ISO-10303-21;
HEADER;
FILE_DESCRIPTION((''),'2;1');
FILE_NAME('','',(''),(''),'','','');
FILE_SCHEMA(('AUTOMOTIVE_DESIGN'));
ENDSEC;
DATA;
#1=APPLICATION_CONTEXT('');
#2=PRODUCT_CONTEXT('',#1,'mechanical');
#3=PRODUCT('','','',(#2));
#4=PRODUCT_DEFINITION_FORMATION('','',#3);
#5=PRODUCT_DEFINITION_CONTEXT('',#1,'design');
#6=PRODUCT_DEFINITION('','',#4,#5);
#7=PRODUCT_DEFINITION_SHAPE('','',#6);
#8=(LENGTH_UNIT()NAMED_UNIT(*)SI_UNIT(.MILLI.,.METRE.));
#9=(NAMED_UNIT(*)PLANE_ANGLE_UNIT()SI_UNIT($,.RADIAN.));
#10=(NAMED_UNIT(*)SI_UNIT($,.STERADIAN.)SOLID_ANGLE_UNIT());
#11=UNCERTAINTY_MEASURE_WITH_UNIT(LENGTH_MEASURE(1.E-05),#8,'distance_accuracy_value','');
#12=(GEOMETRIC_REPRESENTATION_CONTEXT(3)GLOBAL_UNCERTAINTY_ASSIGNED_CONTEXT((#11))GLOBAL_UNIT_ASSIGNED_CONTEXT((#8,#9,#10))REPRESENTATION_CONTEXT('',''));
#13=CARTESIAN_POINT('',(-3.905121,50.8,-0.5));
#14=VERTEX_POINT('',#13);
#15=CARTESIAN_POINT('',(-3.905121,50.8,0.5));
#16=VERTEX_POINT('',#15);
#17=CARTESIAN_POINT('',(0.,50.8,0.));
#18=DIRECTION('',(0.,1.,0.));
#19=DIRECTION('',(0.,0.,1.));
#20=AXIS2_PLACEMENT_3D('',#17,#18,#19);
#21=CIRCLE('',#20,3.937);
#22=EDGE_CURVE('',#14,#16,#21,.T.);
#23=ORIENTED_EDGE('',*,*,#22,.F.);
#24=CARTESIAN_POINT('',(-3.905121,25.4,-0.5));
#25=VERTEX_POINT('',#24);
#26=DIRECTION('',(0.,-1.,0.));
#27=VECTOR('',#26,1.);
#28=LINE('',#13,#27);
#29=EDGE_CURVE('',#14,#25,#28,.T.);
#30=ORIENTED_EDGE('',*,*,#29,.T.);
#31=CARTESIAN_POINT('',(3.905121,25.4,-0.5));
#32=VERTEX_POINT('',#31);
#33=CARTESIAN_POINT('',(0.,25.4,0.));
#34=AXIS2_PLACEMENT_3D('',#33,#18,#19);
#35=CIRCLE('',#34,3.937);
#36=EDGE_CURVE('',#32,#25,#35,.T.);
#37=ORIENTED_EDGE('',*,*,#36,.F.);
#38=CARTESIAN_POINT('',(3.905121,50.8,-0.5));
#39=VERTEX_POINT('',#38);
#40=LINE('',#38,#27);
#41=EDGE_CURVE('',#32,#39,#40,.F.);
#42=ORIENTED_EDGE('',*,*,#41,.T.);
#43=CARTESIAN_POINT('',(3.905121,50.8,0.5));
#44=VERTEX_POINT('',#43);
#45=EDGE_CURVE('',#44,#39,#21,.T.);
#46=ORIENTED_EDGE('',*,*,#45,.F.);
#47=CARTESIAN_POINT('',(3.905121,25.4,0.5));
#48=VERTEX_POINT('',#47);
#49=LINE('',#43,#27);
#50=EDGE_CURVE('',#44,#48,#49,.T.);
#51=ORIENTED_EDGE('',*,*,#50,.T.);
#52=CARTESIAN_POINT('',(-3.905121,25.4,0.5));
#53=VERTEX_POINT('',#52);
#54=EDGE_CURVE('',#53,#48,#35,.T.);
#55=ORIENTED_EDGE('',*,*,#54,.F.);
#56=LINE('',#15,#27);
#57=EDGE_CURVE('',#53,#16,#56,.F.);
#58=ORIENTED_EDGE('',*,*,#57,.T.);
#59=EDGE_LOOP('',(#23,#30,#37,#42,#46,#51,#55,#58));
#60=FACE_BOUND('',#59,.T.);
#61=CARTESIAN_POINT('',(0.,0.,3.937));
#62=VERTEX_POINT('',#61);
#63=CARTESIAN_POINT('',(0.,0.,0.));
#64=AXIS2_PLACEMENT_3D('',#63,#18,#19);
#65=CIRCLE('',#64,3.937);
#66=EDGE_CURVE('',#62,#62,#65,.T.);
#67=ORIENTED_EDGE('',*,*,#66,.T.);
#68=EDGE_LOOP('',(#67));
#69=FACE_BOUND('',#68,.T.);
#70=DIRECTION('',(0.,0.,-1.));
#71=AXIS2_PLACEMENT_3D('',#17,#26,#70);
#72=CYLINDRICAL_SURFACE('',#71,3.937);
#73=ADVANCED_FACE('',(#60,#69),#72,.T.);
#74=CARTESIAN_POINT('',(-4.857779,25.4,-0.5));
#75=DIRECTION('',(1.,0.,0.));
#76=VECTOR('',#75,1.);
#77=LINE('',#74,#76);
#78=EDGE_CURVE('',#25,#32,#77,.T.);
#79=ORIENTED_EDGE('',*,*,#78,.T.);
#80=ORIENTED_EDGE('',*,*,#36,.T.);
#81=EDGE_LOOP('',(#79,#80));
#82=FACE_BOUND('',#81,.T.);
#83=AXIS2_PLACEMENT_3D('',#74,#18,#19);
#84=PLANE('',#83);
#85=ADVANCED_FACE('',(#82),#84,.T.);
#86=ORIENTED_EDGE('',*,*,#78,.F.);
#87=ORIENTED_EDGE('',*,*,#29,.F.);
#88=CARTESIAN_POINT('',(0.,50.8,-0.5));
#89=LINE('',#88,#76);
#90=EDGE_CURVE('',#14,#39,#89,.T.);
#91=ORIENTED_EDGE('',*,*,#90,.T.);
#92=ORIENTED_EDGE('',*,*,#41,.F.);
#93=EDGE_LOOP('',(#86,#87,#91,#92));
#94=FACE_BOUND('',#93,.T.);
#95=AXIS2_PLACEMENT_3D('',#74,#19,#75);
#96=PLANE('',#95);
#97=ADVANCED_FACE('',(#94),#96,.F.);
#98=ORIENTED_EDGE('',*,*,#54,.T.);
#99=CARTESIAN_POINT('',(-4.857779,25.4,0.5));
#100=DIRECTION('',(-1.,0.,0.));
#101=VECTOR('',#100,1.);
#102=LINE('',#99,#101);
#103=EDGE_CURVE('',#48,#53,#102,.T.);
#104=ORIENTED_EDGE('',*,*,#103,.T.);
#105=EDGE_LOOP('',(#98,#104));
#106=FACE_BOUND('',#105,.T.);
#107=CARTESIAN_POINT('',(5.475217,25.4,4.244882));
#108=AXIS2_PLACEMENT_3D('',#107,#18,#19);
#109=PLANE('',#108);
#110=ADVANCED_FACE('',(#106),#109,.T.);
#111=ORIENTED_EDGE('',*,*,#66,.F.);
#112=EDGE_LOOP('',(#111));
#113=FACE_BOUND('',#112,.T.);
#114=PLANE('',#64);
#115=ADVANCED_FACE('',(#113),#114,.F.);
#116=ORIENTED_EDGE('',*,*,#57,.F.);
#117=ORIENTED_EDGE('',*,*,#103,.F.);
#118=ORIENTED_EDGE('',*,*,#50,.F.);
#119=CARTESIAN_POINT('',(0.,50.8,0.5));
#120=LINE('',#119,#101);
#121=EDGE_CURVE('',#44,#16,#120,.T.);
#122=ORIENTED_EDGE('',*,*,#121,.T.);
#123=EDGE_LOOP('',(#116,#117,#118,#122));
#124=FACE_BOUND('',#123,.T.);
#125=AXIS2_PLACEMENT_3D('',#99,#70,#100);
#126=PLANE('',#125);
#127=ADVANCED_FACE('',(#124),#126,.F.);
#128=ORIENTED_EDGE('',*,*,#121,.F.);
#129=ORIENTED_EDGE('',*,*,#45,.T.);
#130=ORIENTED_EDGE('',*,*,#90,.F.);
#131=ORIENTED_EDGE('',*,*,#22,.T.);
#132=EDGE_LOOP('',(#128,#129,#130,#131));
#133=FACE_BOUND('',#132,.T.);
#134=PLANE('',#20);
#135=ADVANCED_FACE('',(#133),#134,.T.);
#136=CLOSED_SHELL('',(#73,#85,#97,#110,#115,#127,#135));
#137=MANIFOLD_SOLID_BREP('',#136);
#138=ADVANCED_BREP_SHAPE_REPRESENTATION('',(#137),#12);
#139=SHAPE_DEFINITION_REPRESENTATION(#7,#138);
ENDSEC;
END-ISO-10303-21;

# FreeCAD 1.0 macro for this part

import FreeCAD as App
import Part
import Sketcher

V = App.Vector
Q = App.Units.Quantity


def add_polygon(sketch, points):
    """Adds a closed chain of lines whose ends are joined by coincident constraints."""
    first, n = sketch.GeometryCount, len(points)
    for a, b in zip(points, points[1:] + points[:1]):
        sketch.addGeometry(Part.LineSegment(App.Vector(*a, 0), App.Vector(*b, 0)), False)
    for i in range(n):
        sketch.addConstraint(Sketcher.Constraint("Coincident", first + i, 2, first + (i + 1) % n, 1))

doc = App.newDocument("Part")
body = doc.addObject("PartDesign::Body", "Body")

# Sketch on XZ plane
sketch1 = body.newObject("Sketcher::SketchObject", "Sketch")
sketch1.AttachmentSupport = (doc.getObject("XZ_Plane"), [""])
sketch1.MapMode = "FlatFace"
sketch1.addGeometry(Part.Circle(V(0, 0, 0), V(0, 0, 1), 3.937), False)
sketch1.addConstraint(Sketcher.Constraint("Coincident", 0, 3, -1, 1))
sketch1.addConstraint(Sketcher.Constraint("Diameter", 0, Q("0.31 in")))
pad1 = body.newObject("PartDesign::Pad", "Pad")
pad1.Profile = sketch1
pad1.Length = Q("2 in")
pad1.Reversed = True

# Sketch on XZ plane
sketch2 = body.newObject("Sketcher::SketchObject", "Sketch001")
sketch2.AttachmentSupport = (doc.getObject("XZ_Plane"), [""])
sketch2.MapMode = "FlatFace"
sketch2.AttachmentOffset = App.Placement(V(0, 0, -2 * 25.4), App.Rotation())
add_polygon(sketch2, [(-4.857779, 0.5), (-4.857779, 4.244882), (5.475217, 4.244882), (5.475217, 0.5)])  # lines 0-3
add_polygon(sketch2, [(-4.857779, -4.244882), (-4.857779, -0.5), (5.475217, -0.5), (5.475217, -4.244882)])  # lines 4-7
sketch2.addConstraint(Sketcher.Constraint("Vertical", 0))
sketch2.addConstraint(Sketcher.Constraint("Horizontal", 1))
sketch2.addConstraint(Sketcher.Constraint("Vertical", 2))
sketch2.addConstraint(Sketcher.Constraint("Horizontal", 3))
sketch2.addConstraint(Sketcher.Constraint("Vertical", 4))
sketch2.addConstraint(Sketcher.Constraint("Horizontal", 5))
sketch2.addConstraint(Sketcher.Constraint("Vertical", 6))
sketch2.addConstraint(Sketcher.Constraint("Horizontal", 7))
sketch2.addConstraint(Sketcher.Constraint("Symmetric", 3, 2, 4, 2, -1))
sketch2.addConstraint(Sketcher.Constraint("Symmetric", 1, 2, 6, 2, -1))
sketch2.addConstraint(Sketcher.Constraint("DistanceY", 0, 1, 0, 2, Q("3.744882 mm")))
sketch2.addConstraint(Sketcher.Constraint("DistanceY", -1, 1, 2, 2, Q("0.5 mm")))
sketch2.addConstraint(Sketcher.Constraint("DistanceX", 1, 1, 1, 2, Q("10.332996 mm")))
sketch2.addConstraint(Sketcher.Constraint("DistanceX", 0, 2, -1, 1, Q("4.857779 mm")))
pocket1 = body.newObject("PartDesign::Pocket", "Pocket")
pocket1.Profile = sketch2
pocket1.Length = Q("1 in")
pocket1.Reversed = True

doc.recompute()
